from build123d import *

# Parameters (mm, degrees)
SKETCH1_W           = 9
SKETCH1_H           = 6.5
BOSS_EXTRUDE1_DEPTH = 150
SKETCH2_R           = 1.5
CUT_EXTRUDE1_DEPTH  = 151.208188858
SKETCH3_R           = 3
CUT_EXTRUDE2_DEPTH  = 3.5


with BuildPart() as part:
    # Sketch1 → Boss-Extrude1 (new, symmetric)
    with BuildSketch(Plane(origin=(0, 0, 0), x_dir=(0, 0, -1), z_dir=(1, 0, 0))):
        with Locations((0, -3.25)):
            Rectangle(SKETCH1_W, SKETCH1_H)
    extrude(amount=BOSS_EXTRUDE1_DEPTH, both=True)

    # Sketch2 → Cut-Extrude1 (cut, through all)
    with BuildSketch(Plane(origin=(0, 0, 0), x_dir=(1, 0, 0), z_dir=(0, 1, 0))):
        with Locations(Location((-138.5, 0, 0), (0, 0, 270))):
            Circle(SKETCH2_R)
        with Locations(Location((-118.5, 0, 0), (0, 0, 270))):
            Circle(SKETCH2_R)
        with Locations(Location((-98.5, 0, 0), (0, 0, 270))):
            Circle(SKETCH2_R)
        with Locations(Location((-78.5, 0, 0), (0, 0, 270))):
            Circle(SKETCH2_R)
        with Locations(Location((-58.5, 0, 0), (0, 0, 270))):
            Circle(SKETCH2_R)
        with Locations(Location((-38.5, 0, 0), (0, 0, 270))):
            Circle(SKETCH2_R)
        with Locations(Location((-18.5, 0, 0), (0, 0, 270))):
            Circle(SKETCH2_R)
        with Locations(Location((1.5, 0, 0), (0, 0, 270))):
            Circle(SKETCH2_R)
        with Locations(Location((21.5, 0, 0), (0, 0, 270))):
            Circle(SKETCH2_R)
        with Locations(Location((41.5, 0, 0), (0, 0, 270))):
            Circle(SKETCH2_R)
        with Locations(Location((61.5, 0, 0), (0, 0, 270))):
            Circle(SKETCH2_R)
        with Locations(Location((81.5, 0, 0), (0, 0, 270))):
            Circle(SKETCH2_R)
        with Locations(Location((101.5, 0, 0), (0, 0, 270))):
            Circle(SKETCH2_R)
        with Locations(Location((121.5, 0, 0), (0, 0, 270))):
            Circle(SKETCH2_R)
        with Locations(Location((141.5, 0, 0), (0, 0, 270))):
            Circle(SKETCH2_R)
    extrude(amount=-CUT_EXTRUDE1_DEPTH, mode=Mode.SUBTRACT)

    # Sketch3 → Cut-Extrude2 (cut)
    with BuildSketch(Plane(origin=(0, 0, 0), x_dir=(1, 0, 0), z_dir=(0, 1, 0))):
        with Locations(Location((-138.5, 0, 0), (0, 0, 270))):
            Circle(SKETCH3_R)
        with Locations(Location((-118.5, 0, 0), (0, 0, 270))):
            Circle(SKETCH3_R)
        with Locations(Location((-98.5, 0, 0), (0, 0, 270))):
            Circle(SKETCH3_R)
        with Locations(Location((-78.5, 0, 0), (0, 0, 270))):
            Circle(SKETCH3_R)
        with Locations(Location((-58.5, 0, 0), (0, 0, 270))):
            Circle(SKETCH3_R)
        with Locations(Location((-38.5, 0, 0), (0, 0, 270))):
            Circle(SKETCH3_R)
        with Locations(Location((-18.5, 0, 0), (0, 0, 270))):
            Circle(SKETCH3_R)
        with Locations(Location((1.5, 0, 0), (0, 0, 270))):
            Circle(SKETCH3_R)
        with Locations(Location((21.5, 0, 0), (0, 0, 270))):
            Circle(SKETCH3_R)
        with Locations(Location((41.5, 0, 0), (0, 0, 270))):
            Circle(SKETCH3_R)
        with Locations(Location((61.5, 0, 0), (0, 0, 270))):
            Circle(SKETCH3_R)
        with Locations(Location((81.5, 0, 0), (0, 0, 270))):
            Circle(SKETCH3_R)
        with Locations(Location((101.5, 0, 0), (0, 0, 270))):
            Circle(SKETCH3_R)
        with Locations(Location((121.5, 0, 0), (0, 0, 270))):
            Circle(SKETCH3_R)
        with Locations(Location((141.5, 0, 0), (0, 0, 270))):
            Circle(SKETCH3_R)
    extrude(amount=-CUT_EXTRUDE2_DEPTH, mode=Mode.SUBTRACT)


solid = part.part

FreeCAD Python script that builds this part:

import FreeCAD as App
import Part
import Sketcher
from FreeCAD import Vector
Q = App.Units.Quantity

doc = App.newDocument("Part")
body = doc.addObject("PartDesign::Body", "Body")

# Sketch on YZ plane
sketch1 = doc.addObject("Sketcher::SketchObject", "Sketch")
body.addObject(sketch1)
sketch1.AttachmentSupport = (doc.YZ_Plane, [""])
sketch1.MapMode = "FlatFace"
sketch1.addGeometry([
    Part.LineSegment(Vector(0, 4, 0), Vector(-6, 4, 0)),
    Part.LineSegment(Vector(-6, 4, 0), Vector(-6, -4, 0)),
    Part.LineSegment(Vector(-6, -4, 0), Vector(0, -4, 0)),
    Part.LineSegment(Vector(0, -4, 0), Vector(0, 4, 0)),
], False)
sketch1.addConstraint([
    Sketcher.Constraint("Coincident", 0, 2, 1, 1),
    Sketcher.Constraint("Coincident", 1, 2, 2, 1),
    Sketcher.Constraint("Coincident", 2, 2, 3, 1),
    Sketcher.Constraint("Coincident", 3, 2, 0, 1),
    Sketcher.Constraint("Horizontal", 0),
    Sketcher.Constraint("Vertical", 1),
    Sketcher.Constraint("Horizontal", 2),
    Sketcher.Constraint("Vertical", 3),
    Sketcher.Constraint("Symmetric", 2, 2, 3, 2, -1, 1),
    Sketcher.Constraint("DistanceY", 1, 2, 1, 1, Q("9 mm")),
    Sketcher.Constraint("DistanceX", 0, 2, 0, 1, Q("6.5 mm")),
])
pad1 = doc.addObject("PartDesign::Pad", "Pad")
body.addObject(pad1)
pad1.Profile = sketch1
pad1.Length = 300
pad1.Midplane = True

# Sketch on XZ plane
sketch2 = doc.addObject("Sketcher::SketchObject", "Sketch001")
body.addObject(sketch2)
sketch2.AttachmentSupport = (doc.XZ_Plane, [""])
sketch2.MapMode = "FlatFace"
sketch2.addGeometry([
    Part.Circle(Vector(-138.5, 0, 0), Vector(0, 0, 1), 1.5),  # 0
    Part.Circle(Vector(-118.5, 0, 0), Vector(0, 0, 1), 1.5),  # 1
    Part.Circle(Vector(-98.5, 0, 0), Vector(0, 0, 1), 1.5),  # 2
    Part.Circle(Vector(-78.5, 0, 0), Vector(0, 0, 1), 1.5),  # 3
    Part.Circle(Vector(-58.5, 0, 0), Vector(0, 0, 1), 1.5),  # 4
    Part.Circle(Vector(-38.5, 0, 0), Vector(0, 0, 1), 1.5),  # 5
    Part.Circle(Vector(-18.5, 0, 0), Vector(0, 0, 1), 1.5),  # 6
    Part.Circle(Vector(1.5, 0, 0), Vector(0, 0, 1), 1.5),  # 7
    Part.Circle(Vector(21.5, 0, 0), Vector(0, 0, 1), 1.5),  # 8
    Part.Circle(Vector(41.5, 0, 0), Vector(0, 0, 1), 1.5),  # 9
    Part.Circle(Vector(61.5, 0, 0), Vector(0, 0, 1), 1.5),  # 10
    Part.Circle(Vector(81.5, 0, 0), Vector(0, 0, 1), 1.5),  # 11
    Part.Circle(Vector(101.5, 0, 0), Vector(0, 0, 1), 1.5),  # 12
    Part.Circle(Vector(121.5, 0, 0), Vector(0, 0, 1), 1.5),  # 13
    Part.Circle(Vector(141.5, 0, 0), Vector(0, 0, 1), 1.5),  # 14
], False)
sketch2.addConstraint([
    Sketcher.Constraint("Equal", 0, 1),
    Sketcher.Constraint("Equal", 1, 2),
    Sketcher.Constraint("Equal", 2, 3),
    Sketcher.Constraint("Equal", 3, 4),
    Sketcher.Constraint("Equal", 4, 5),
    Sketcher.Constraint("Equal", 5, 6),
    Sketcher.Constraint("Equal", 6, 7),
    Sketcher.Constraint("Equal", 7, 8),
    Sketcher.Constraint("Equal", 8, 9),
    Sketcher.Constraint("Equal", 9, 10),
    Sketcher.Constraint("Equal", 10, 11),
    Sketcher.Constraint("Equal", 11, 12),
    Sketcher.Constraint("Equal", 12, 13),
    Sketcher.Constraint("Equal", 13, 14),
    Sketcher.Constraint("PointOnObject", 0, 3, -1),
    Sketcher.Constraint("PointOnObject", 1, 3, -1),
    Sketcher.Constraint("PointOnObject", 2, 3, -1),
    Sketcher.Constraint("PointOnObject", 3, 3, -1),
    Sketcher.Constraint("PointOnObject", 4, 3, -1),
    Sketcher.Constraint("PointOnObject", 5, 3, -1),
    Sketcher.Constraint("PointOnObject", 6, 3, -1),
    Sketcher.Constraint("PointOnObject", 7, 3, -1),
    Sketcher.Constraint("PointOnObject", 8, 3, -1),
    Sketcher.Constraint("PointOnObject", 9, 3, -1),
    Sketcher.Constraint("PointOnObject", 10, 3, -1),
    Sketcher.Constraint("PointOnObject", 11, 3, -1),
    Sketcher.Constraint("PointOnObject", 12, 3, -1),
    Sketcher.Constraint("PointOnObject", 13, 3, -1),
    Sketcher.Constraint("PointOnObject", 14, 3, -1),
    Sketcher.Constraint("Diameter", 0, Q("3 mm")),
    Sketcher.Constraint("DistanceX", 0, 3, 1, 3, Q("20 mm")),
    Sketcher.Constraint("DistanceX", 1, 3, 2, 3, Q("20 mm")),
    Sketcher.Constraint("DistanceX", 2, 3, 3, 3, Q("20 mm")),
    Sketcher.Constraint("DistanceX", 3, 3, 4, 3, Q("20 mm")),
    Sketcher.Constraint("DistanceX", 4, 3, 5, 3, Q("20 mm")),
    Sketcher.Constraint("DistanceX", 5, 3, 6, 3, Q("20 mm")),
    Sketcher.Constraint("DistanceX", 6, 3, 7, 3, Q("20 mm")),
    Sketcher.Constraint("DistanceX", 7, 3, 8, 3, Q("20 mm")),
    Sketcher.Constraint("DistanceX", 8, 3, 9, 3, Q("20 mm")),
    Sketcher.Constraint("DistanceX", 9, 3, 10, 3, Q("20 mm")),
    Sketcher.Constraint("DistanceX", 10, 3, 11, 3, Q("20 mm")),
    Sketcher.Constraint("DistanceX", 11, 3, 12, 3, Q("20 mm")),
    Sketcher.Constraint("DistanceX", 12, 3, 13, 3, Q("20 mm")),
    Sketcher.Constraint("DistanceX", 13, 3, 14, 3, Q("20 mm")),
    Sketcher.Constraint("DistanceX", 0, 3, -1, 1, Q("138.5 mm")),
])
pocket1 = doc.addObject("PartDesign::Pocket", "Pocket")
body.addObject(pocket1)
pocket1.Profile = sketch2
pocket1.Type = "ThroughAll"
pocket1.Reversed = True

# Sketch on XZ plane
sketch3 = doc.addObject("Sketcher::SketchObject", "Sketch002")
body.addObject(sketch3)
sketch3.AttachmentSupport = (doc.XZ_Plane, [""])
sketch3.MapMode = "FlatFace"
sketch3.addGeometry([
    Part.Circle(Vector(-138.5, 0, 0), Vector(0, 0, 1), 3),  # 0
    Part.Circle(Vector(-118.5, 0, 0), Vector(0, 0, 1), 3),  # 1
    Part.Circle(Vector(-98.5, 0, 0), Vector(0, 0, 1), 3),  # 2
    Part.Circle(Vector(-78.5, 0, 0), Vector(0, 0, 1), 3),  # 3
    Part.Circle(Vector(-58.5, 0, 0), Vector(0, 0, 1), 3),  # 4
    Part.Circle(Vector(-38.5, 0, 0), Vector(0, 0, 1), 3),  # 5
    Part.Circle(Vector(-18.5, 0, 0), Vector(0, 0, 1), 3),  # 6
    Part.Circle(Vector(1.5, 0, 0), Vector(0, 0, 1), 3),  # 7
    Part.Circle(Vector(21.5, 0, 0), Vector(0, 0, 1), 3),  # 8
    Part.Circle(Vector(41.5, 0, 0), Vector(0, 0, 1), 3),  # 9
    Part.Circle(Vector(61.5, 0, 0), Vector(0, 0, 1), 3),  # 10
    Part.Circle(Vector(81.5, 0, 0), Vector(0, 0, 1), 3),  # 11
    Part.Circle(Vector(101.5, 0, 0), Vector(0, 0, 1), 3),  # 12
    Part.Circle(Vector(121.5, 0, 0), Vector(0, 0, 1), 3),  # 13
    Part.Circle(Vector(141.5, 0, 0), Vector(0, 0, 1), 3),  # 14
], False)
sketch3.addConstraint([
    Sketcher.Constraint("Equal", 0, 1),
    Sketcher.Constraint("Equal", 1, 2),
    Sketcher.Constraint("Equal", 2, 3),
    Sketcher.Constraint("Equal", 3, 4),
    Sketcher.Constraint("Equal", 4, 5),
    Sketcher.Constraint("Equal", 5, 6),
    Sketcher.Constraint("Equal", 6, 7),
    Sketcher.Constraint("Equal", 7, 8),
    Sketcher.Constraint("Equal", 8, 9),
    Sketcher.Constraint("Equal", 9, 10),
    Sketcher.Constraint("Equal", 10, 11),
    Sketcher.Constraint("Equal", 11, 12),
    Sketcher.Constraint("Equal", 12, 13),
    Sketcher.Constraint("Equal", 13, 14),
    Sketcher.Constraint("PointOnObject", 0, 3, -1),
    Sketcher.Constraint("PointOnObject", 1, 3, -1),
    Sketcher.Constraint("PointOnObject", 2, 3, -1),
    Sketcher.Constraint("PointOnObject", 3, 3, -1),
    Sketcher.Constraint("PointOnObject", 4, 3, -1),
    Sketcher.Constraint("PointOnObject", 5, 3, -1),
    Sketcher.Constraint("PointOnObject", 6, 3, -1),
    Sketcher.Constraint("PointOnObject", 7, 3, -1),
    Sketcher.Constraint("PointOnObject", 8, 3, -1),
    Sketcher.Constraint("PointOnObject", 9, 3, -1),
    Sketcher.Constraint("PointOnObject", 10, 3, -1),
    Sketcher.Constraint("PointOnObject", 11, 3, -1),
    Sketcher.Constraint("PointOnObject", 12, 3, -1),
    Sketcher.Constraint("PointOnObject", 13, 3, -1),
    Sketcher.Constraint("PointOnObject", 14, 3, -1),
    Sketcher.Constraint("Diameter", 0, Q("6 mm")),
    Sketcher.Constraint("DistanceX", 0, 3, 1, 3, Q("20 mm")),
    Sketcher.Constraint("DistanceX", 1, 3, 2, 3, Q("20 mm")),
    Sketcher.Constraint("DistanceX", 2, 3, 3, 3, Q("20 mm")),
    Sketcher.Constraint("DistanceX", 3, 3, 4, 3, Q("20 mm")),
    Sketcher.Constraint("DistanceX", 4, 3, 5, 3, Q("20 mm")),
    Sketcher.Constraint("DistanceX", 5, 3, 6, 3, Q("20 mm")),
    Sketcher.Constraint("DistanceX", 6, 3, 7, 3, Q("20 mm")),
    Sketcher.Constraint("DistanceX", 7, 3, 8, 3, Q("20 mm")),
    Sketcher.Constraint("DistanceX", 8, 3, 9, 3, Q("20 mm")),
    Sketcher.Constraint("DistanceX", 9, 3, 10, 3, Q("20 mm")),
    Sketcher.Constraint("DistanceX", 10, 3, 11, 3, Q("20 mm")),
    Sketcher.Constraint("DistanceX", 11, 3, 12, 3, Q("20 mm")),
    Sketcher.Constraint("DistanceX", 12, 3, 13, 3, Q("20 mm")),
    Sketcher.Constraint("DistanceX", 13, 3, 14, 3, Q("20 mm")),
    Sketcher.Constraint("DistanceX", 0, 3, -1, 1, Q("138.5 mm")),
])
pocket2 = doc.addObject("PartDesign::Pocket", "Pocket001")
body.addObject(pocket2)
pocket2.Profile = sketch3
pocket2.Length = 3.5
pocket2.Reversed = True

doc.recompute()
